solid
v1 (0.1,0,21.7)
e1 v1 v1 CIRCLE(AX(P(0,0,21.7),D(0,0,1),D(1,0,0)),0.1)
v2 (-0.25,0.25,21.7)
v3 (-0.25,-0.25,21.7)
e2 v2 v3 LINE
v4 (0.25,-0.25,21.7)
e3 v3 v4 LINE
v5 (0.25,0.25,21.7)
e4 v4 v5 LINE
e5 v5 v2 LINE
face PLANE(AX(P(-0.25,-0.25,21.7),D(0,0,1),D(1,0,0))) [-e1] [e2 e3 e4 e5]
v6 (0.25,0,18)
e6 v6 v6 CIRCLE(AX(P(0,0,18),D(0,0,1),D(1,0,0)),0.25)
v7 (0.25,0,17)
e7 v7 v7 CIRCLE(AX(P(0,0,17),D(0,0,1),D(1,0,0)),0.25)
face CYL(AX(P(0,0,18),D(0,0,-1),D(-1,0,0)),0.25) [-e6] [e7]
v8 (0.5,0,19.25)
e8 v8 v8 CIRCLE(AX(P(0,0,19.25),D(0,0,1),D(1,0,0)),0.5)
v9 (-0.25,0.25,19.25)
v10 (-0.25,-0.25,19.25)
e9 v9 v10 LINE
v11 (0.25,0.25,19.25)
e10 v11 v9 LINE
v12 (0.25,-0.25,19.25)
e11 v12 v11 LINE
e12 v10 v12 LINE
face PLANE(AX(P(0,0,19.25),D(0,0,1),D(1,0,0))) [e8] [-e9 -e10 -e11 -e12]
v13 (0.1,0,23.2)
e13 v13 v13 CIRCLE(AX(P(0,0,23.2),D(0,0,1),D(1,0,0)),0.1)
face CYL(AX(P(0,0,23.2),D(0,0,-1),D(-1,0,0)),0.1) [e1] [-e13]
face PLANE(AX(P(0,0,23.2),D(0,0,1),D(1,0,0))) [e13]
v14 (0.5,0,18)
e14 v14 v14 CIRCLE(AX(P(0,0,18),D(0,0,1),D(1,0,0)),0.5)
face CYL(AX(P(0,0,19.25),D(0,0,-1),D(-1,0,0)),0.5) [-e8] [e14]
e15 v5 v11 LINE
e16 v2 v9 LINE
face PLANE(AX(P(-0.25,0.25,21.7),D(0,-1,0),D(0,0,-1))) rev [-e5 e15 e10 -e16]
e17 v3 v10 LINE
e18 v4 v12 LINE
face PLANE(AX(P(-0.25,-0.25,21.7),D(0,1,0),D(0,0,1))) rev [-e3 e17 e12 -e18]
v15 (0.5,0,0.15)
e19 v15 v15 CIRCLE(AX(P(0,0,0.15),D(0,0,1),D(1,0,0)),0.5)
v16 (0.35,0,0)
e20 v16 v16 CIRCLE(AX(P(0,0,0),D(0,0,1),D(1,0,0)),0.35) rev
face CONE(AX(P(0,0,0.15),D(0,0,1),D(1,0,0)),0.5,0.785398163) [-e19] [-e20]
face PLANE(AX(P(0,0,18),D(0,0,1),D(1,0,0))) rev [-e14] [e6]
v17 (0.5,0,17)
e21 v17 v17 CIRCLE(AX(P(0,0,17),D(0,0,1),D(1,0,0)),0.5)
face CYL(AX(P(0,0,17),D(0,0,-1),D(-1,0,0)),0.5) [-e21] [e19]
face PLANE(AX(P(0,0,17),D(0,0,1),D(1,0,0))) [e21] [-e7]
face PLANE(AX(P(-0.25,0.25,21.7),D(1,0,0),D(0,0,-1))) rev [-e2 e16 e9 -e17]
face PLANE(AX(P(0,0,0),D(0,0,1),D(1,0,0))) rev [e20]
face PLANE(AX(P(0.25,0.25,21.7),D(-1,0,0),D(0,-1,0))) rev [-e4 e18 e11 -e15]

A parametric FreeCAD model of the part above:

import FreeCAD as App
import Part
import Sketcher

V = App.Vector
Q = App.Units.Quantity


def edges_at(feature, points):
    """Names of the edges that pass closest to the given points."""
    edges = feature.Shape.Edges
    near = lambda p: min(range(len(edges)), key=lambda i: edges[i].distToShape(Part.Vertex(*p))[0])
    return sorted({f"Edge{near(p) + 1}" for p in points})


def add_polygon(sketch, points):
    """Adds a closed chain of lines whose ends are joined by coincident constraints."""
    first, n = sketch.GeometryCount, len(points)
    for a, b in zip(points, points[1:] + points[:1]):
        sketch.addGeometry(Part.LineSegment(App.Vector(*a, 0), App.Vector(*b, 0)), False)
    for i in range(n):
        sketch.addConstraint(Sketcher.Constraint("Coincident", first + i, 2, first + (i + 1) % n, 1))

doc = App.newDocument("Part")
params = doc.addObject("Spreadsheet::Sheet", "Params")
for row, (alias, value) in enumerate([
    ("sketch1_diameter", "1 mm"),
    ("pad1_length", "17 mm"),
    ("chamfer_size", "0.15 mm"),
    ("sketch2_diameter", "0.5 mm"),
    ("pad2_length", "1 mm"),
    ("sketch3_diameter", "1 mm"),
    ("pad3_length", "1.25 mm"),
    ("sketch4_width", "0.5 mm"),
    ("pad4_length", "2.45 mm"),
    ("sketch5_diameter", "0.2 mm"),
    ("pad5_length", "1.5 mm"),
], start=1):
    params.set(f"A{row}", alias)
    params.set(f"B{row}", "=" + value)
    params.setAlias(f"B{row}", alias)

body = doc.addObject("PartDesign::Body", "Body")

sketch1 = body.newObject("Sketcher::SketchObject", "Sketch")
sketch1.AttachmentSupport = (doc.getObject("XY_Plane"), [""])
sketch1.MapMode = "FlatFace"
sketch1.addGeometry(Part.Circle(V(0, 0, 0), V(0, 0, 1), 0.5), False)
sketch1.addConstraint([
    Sketcher.Constraint("Coincident", 0, 3, -1, 1),
    Sketcher.Constraint("Diameter", 0, Q("1 mm")),
])
sketch1.setExpression("Constraints[1]", "Params.sketch1_diameter")
pad1 = body.newObject("PartDesign::Pad", "Pad")
pad1.Profile = sketch1
pad1.setExpression("Length", "Params.pad1_length")
doc.recompute()

chamfer = body.newObject("PartDesign::Chamfer", "Chamfer")
chamfer.Base = (pad1, edges_at(pad1, [(-0.5, 0, 0)]))
chamfer.setExpression("Size", "Params.chamfer_size")

sketch2 = body.newObject("Sketcher::SketchObject", "Sketch001")
sketch2.AttachmentSupport = (doc.getObject("XY_Plane"), [""])
sketch2.MapMode = "FlatFace"
sketch2.AttachmentOffset = App.Placement(V(0, 0, 17), App.Rotation())
sketch2.addGeometry(Part.Circle(V(0, 0, 0), V(0, 0, 1), 0.25), False)
sketch2.addConstraint([
    Sketcher.Constraint("Coincident", 0, 3, -1, 1),
    Sketcher.Constraint("Diameter", 0, Q("0.5 mm")),
])
sketch2.setExpression("Constraints[1]", "Params.sketch2_diameter")
pad2 = body.newObject("PartDesign::Pad", "Pad001")
pad2.Profile = sketch2
pad2.setExpression("Length", "Params.pad2_length")

sketch3 = body.newObject("Sketcher::SketchObject", "Sketch002")
sketch3.AttachmentSupport = (doc.getObject("XY_Plane"), [""])
sketch3.MapMode = "FlatFace"
sketch3.AttachmentOffset = App.Placement(V(0, 0, 18), App.Rotation())
sketch3.addGeometry(Part.Circle(V(0, 0, 0), V(0, 0, 1), 0.5), False)
sketch3.addConstraint([
    Sketcher.Constraint("Coincident", 0, 3, -1, 1),
    Sketcher.Constraint("Diameter", 0, Q("1 mm")),
])
sketch3.setExpression("Constraints[1]", "Params.sketch3_diameter")
pad3 = body.newObject("PartDesign::Pad", "Pad002")
pad3.Profile = sketch3
pad3.setExpression("Length", "Params.pad3_length")

sketch4 = body.newObject("Sketcher::SketchObject", "Sketch003")
sketch4.AttachmentSupport = (doc.getObject("XY_Plane"), [""])
sketch4.MapMode = "FlatFace"
sketch4.AttachmentOffset = App.Placement(V(0, 0, 19.25), App.Rotation())
add_polygon(sketch4, [(-0.2, 0.2), (-0.2, -0.2), (0.2, -0.2), (0.2, 0.2)])
sketch4.addConstraint([
    Sketcher.Constraint("Vertical", 0),
    Sketcher.Constraint("Horizontal", 1),
    Sketcher.Constraint("Vertical", 2),
    Sketcher.Constraint("Horizontal", 3),
    Sketcher.Constraint("Symmetric", 0, 2, 2, 2, -1, 1),
    Sketcher.Constraint("Equal", 3, 0),
    Sketcher.Constraint("DistanceX", 1, 1, 1, 2, Q("0.5 mm")),
])
sketch4.setExpression("Constraints[10]", "Params.sketch4_width")
pad4 = body.newObject("PartDesign::Pad", "Pad003")
pad4.Profile = sketch4
pad4.setExpression("Length", "Params.pad4_length")

sketch5 = body.newObject("Sketcher::SketchObject", "Sketch004")
sketch5.AttachmentSupport = (doc.getObject("XY_Plane"), [""])
sketch5.MapMode = "FlatFace"
sketch5.AttachmentOffset = App.Placement(V(0, 0, 21.7), App.Rotation())
sketch5.addGeometry(Part.Circle(V(0, 0, 0), V(0, 0, 1), 0.1), False)
sketch5.addConstraint([
    Sketcher.Constraint("Coincident", 0, 3, -1, 1),
    Sketcher.Constraint("Diameter", 0, Q("0.2 mm")),
])
sketch5.setExpression("Constraints[1]", "Params.sketch5_diameter")
pad5 = body.newObject("PartDesign::Pad", "Pad004")
pad5.Profile = sketch5
pad5.setExpression("Length", "Params.pad5_length")

doc.recompute()
